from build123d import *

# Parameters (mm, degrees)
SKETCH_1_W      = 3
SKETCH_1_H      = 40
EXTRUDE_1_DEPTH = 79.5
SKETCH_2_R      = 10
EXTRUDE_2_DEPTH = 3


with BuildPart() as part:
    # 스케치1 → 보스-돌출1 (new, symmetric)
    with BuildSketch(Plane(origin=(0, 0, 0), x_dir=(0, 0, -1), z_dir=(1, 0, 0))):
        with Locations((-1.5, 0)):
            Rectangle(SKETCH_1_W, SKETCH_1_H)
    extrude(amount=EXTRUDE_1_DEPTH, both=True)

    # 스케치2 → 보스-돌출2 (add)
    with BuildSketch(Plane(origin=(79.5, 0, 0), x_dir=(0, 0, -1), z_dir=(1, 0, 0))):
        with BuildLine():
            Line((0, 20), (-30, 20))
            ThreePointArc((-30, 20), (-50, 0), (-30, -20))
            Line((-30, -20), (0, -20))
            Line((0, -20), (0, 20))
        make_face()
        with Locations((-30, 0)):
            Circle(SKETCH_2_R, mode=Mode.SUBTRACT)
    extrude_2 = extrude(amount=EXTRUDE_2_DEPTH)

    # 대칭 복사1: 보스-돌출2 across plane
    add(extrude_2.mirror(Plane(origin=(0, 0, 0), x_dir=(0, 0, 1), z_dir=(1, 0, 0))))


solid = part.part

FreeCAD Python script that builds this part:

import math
import FreeCAD as App
import Part
import Sketcher
from FreeCAD import Vector
Q = App.Units.Quantity


def add_polygon(sketch, points):
    """Adds a closed chain of lines whose ends are joined by coincident constraints."""
    first, n = sketch.GeometryCount, len(points)
    for a, b in zip(points, points[1:] + points[:1]):
        sketch.addGeometry(Part.LineSegment(App.Vector(*a, 0), App.Vector(*b, 0)), False)
    for i in range(n):
        sketch.addConstraint(Sketcher.Constraint("Coincident", first + i, 2, first + (i + 1) % n, 1))

doc = App.newDocument("Part")
body = doc.addObject("PartDesign::Body", "Body")

# Sketch on YZ plane
sketch1 = body.newObject("Sketcher::SketchObject", "Sketch")
sketch1.AttachmentSupport = (doc.getObject("YZ_Plane"), [""])
sketch1.MapMode = "FlatFace"
add_polygon(sketch1, [(20, 3), (-20, 3), (-20, 0), (20, 0)])  # lines 0-3
sketch1.addConstraint([
    Sketcher.Constraint("Horizontal", 0),
    Sketcher.Constraint("Vertical", 1),
    Sketcher.Constraint("Horizontal", 2),
    Sketcher.Constraint("Vertical", 3),
    Sketcher.Constraint("Symmetric", 1, 2, 2, 2, -1, 1),
    Sketcher.Constraint("DistanceX", 0, 2, 0, 1, Q("40 mm")),
    Sketcher.Constraint("DistanceY", 1, 2, 1, 1, Q("3 mm")),
])
pad1 = body.newObject("PartDesign::Pad", "Pad")
pad1.Profile = sketch1
pad1.Length = 159
pad1.Midplane = True

# Sketch on YZ plane
sketch2 = body.newObject("Sketcher::SketchObject", "Sketch001")
sketch2.AttachmentSupport = (doc.getObject("YZ_Plane"), [""])
sketch2.MapMode = "FlatFace"
sketch2.AttachmentOffset = App.Placement(Vector(0, 0, 79.5), App.Rotation())
sketch2.addGeometry([
    Part.LineSegment(Vector(20, 0, 0), Vector(20, 30, 0)),  # 0
    Part.ArcOfCircle(Part.Circle(Vector(0, 30, 0), Vector(0, 0, 1), 20), math.radians(0), math.radians(180)),  # 1
    Part.LineSegment(Vector(-20, 30, 0), Vector(-20, 0, 0)),  # 2
    Part.LineSegment(Vector(-20, 0, 0), Vector(20, 0, 0)),  # 3
    Part.Circle(Vector(0, 30, 0), Vector(0, 0, 1), 10),  # 4
], False)
sketch2.addConstraint([
    Sketcher.Constraint("Tangent", 0, 2, 1, 1),
    Sketcher.Constraint("Tangent", 1, 2, 2, 1),
    Sketcher.Constraint("Coincident", 2, 2, 3, 1),
    Sketcher.Constraint("Coincident", 3, 2, 0, 1),
    Sketcher.Constraint("Vertical", 0),
    Sketcher.Constraint("Vertical", 2),
    Sketcher.Constraint("Horizontal", 3),
    Sketcher.Constraint("Coincident", 4, 3, 1, 3),
    Sketcher.Constraint("Symmetric", 2, 2, 3, 2, -1, 1),
    Sketcher.Constraint("Diameter", 4, Q("20 mm")),
    Sketcher.Constraint("Radius", 1, Q("20 mm")),
    Sketcher.Constraint("DistanceY", 0, 1, 0, 2, Q("30 mm")),
])
pad2 = body.newObject("PartDesign::Pad", "Pad001")
pad2.Profile = sketch2
pad2.Length = 3
doc.recompute()

mirrored = body.newObject("PartDesign::Mirrored", "Mirrored")
mirrored.Originals = [pad2]
mirrored.MirrorPlane = (doc.getObject("YZ_Plane"), [""])
body.Tip = mirrored

doc.recompute()
